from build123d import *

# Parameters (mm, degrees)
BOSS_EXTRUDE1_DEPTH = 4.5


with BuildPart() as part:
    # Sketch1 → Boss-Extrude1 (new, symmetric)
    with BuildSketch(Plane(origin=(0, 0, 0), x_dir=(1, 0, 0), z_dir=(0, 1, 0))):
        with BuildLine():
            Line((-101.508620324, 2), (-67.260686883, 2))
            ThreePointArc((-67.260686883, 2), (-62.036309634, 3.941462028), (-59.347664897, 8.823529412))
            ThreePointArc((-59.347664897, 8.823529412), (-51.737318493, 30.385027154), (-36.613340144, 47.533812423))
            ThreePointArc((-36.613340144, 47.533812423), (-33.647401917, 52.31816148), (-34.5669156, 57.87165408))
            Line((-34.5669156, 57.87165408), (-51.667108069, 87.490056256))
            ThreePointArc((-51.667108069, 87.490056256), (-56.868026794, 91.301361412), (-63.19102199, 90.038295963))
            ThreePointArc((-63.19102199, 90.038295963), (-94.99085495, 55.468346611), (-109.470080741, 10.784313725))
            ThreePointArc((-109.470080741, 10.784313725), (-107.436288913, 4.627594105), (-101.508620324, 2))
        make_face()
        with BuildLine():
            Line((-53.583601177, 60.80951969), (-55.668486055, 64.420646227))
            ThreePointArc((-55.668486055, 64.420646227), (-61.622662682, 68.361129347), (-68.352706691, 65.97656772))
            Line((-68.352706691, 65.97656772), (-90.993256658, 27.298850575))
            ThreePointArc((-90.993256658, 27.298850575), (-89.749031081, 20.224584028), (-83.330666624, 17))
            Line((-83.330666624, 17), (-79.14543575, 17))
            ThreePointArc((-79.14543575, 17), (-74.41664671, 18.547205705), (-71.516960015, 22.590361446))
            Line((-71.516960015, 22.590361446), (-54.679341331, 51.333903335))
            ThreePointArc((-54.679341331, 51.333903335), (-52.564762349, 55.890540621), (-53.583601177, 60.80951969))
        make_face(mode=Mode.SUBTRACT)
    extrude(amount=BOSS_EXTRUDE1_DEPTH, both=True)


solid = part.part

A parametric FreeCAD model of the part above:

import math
import FreeCAD as App
import Part
import Sketcher
from FreeCAD import Vector
Q = App.Units.Quantity

doc = App.newDocument("Part")
body = doc.addObject("PartDesign::Body", "Body")

sketch1 = body.newObject("Sketcher::SketchObject", "Sketch")
sketch1.AttachmentSupport = (doc.getObject("XZ_Plane"), [""])
sketch1.MapMode = "FlatFace"
sketch1.addGeometry([
    Part.LineSegment(Vector(-101.5, -2, 0), Vector(-67.3, -2, 0)),
    Part.ArcOfCircle(Part.Circle(Vector(-67.3, -10, 0), Vector(0, 0, 1), 8), math.radians(8), math.radians(90)),
    Part.ArcOfCircle(Part.Circle(Vector(0, 0, 0), Vector(0, 0, 1), 60), math.radians(-172), math.radians(-128)),
    Part.ArcOfCircle(Part.Circle(Vector(-41.5, -53.9, 0), Vector(0, 0, 1), 8), math.radians(-30), math.radians(52)),
    Part.LineSegment(Vector(-34.6, -57.9, 0), Vector(-51.7, -87.5, 0)),
    Part.ArcOfCircle(Part.Circle(Vector(-58.6, -83.5, 0), Vector(0, 0, 1), 8), math.radians(-125), math.radians(-30)),
    Part.ArcOfCircle(Part.Circle(Vector(0, 0, 0), Vector(0, 0, 1), 110), math.radians(-174), math.radians(-125)),
    Part.ArcOfCircle(Part.Circle(Vector(-101.5, -10, 0), Vector(0, 0, 1), 8), math.radians(90), math.radians(186)),
    Part.LineSegment(Vector(-55.7, -64.4, 0), Vector(-53.6, -60.8, 0)),
    Part.ArcOfCircle(Part.Circle(Vector(-60.5, -56.8, 0), Vector(0, 0, 1), 8), math.radians(-30), math.radians(43)),
    Part.LineSegment(Vector(-54.7, -51.3, 0), Vector(-71.5, -22.6, 0)),
    Part.ArcOfCircle(Part.Circle(Vector(-79.1, -25, 0), Vector(0, 0, 1), 8), math.radians(18), math.radians(90)),
    Part.LineSegment(Vector(-79.1, -17, 0), Vector(-83.3, -17, 0)),
    Part.ArcOfCircle(Part.Circle(Vector(-83.3, -25, 0), Vector(0, 0, 1), 8), math.radians(90), math.radians(197)),
    Part.LineSegment(Vector(-91, -27.3, 0), Vector(-68.4, -66, 0)),
    Part.ArcOfCircle(Part.Circle(Vector(-62.6, -60.4, 0), Vector(0, 0, 1), 8), math.radians(-136), math.radians(-30)),
], False)
sketch1.addConstraint([
    Sketcher.Constraint("Tangent", 0, 2, 1, 2),
    Sketcher.Constraint("Tangent", 1, 1, 2, 1),
    Sketcher.Constraint("Tangent", 2, 2, 3, 2),
    Sketcher.Constraint("Tangent", 3, 1, 4, 1),
    Sketcher.Constraint("Tangent", 4, 2, 5, 2),
    Sketcher.Constraint("Tangent", 5, 1, 6, 2),
    Sketcher.Constraint("Tangent", 6, 1, 7, 2),
    Sketcher.Constraint("Tangent", 7, 1, 0, 1),
    Sketcher.Constraint("Tangent", 8, 2, 9, 1),
    Sketcher.Constraint("Coincident", 9, 2, 10, 1),
    Sketcher.Constraint("Coincident", 10, 2, 11, 1),
    Sketcher.Constraint("Tangent", 11, 2, 12, 1),
    Sketcher.Constraint("Tangent", 12, 2, 13, 1),
    Sketcher.Constraint("Coincident", 13, 2, 14, 1),
    Sketcher.Constraint("Coincident", 14, 2, 15, 1),
    Sketcher.Constraint("Tangent", 15, 2, 8, 1),
    Sketcher.Constraint("Horizontal", 0),
    Sketcher.Constraint("Horizontal", 12),
    Sketcher.Constraint("Coincident", 2, 3, -1, 1),
    Sketcher.Constraint("Coincident", 6, 3, -1, 1),
    Sketcher.Constraint("Equal", 1, 3),
    Sketcher.Constraint("Equal", 3, 5),
    Sketcher.Constraint("Equal", 5, 7),
    Sketcher.Constraint("Equal", 7, 9),
    Sketcher.Constraint("Equal", 9, 11),
    Sketcher.Constraint("Equal", 11, 13),
    Sketcher.Constraint("Equal", 13, 15),
    Sketcher.Constraint("Parallel", 4, 8),
    Sketcher.Constraint("Radius", 1, Q("8 mm")),
    Sketcher.Constraint("Radius", 2, Q("60 mm")),
    Sketcher.Constraint("Radius", 6, Q("110 mm")),
    Sketcher.Constraint("Angle", 4, Q("-120 deg")),
    Sketcher.Constraint("DistanceY", 1, 3, -1, 1, Q("10 mm")),
    Sketcher.Constraint("DistanceY", 11, 3, -1, 1, Q("25 mm")),
    Sketcher.Constraint("DistanceX", 13, 3, 1, 1, Q("23.983002 mm")),
    Sketcher.Constraint("DistanceX", 9, 2, 2, 2, Q("18.066001 mm")),
    Sketcher.Constraint("DistanceX", 12, 2, 12, 1, Q("4.185231 mm")),
    Sketcher.Constraint("DistanceX", 8, 2, -1, 1, Q("53.583601 mm")),
    Sketcher.Constraint("DistanceX", 7, 3, 3, 3, Q("60.013501 mm")),
    Sketcher.Constraint("Distance", 8, Q("4.16977 mm")),
    Sketcher.Constraint("Distance", 10, Q("33.312109 mm")),
    Sketcher.Constraint("DistanceY", 9, 3, -1, 1, Q("56.80952 mm")),
    Sketcher.Constraint("DistanceY", 13, 2, -1, 1, Q("27.298851 mm")),
    Sketcher.Constraint("DistanceY", 14, 2, 15, 3, Q("5.555921 mm")),
])
pad1 = body.newObject("PartDesign::Pad", "Pad")
pad1.Profile = sketch1
pad1.Length = 9
pad1.Midplane = True

doc.recompute()
